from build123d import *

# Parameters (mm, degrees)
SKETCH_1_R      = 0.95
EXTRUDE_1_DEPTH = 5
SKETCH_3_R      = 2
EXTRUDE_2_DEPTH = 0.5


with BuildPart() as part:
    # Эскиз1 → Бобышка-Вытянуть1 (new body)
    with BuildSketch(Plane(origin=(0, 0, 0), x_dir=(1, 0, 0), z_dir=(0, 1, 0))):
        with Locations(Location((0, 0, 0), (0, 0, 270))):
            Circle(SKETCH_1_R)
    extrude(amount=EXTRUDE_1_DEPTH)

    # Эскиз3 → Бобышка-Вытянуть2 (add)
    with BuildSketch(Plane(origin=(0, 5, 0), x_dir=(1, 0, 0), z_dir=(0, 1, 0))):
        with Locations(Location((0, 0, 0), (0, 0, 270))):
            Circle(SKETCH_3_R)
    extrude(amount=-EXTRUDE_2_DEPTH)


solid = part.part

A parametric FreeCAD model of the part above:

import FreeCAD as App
import Part
import Sketcher

V = App.Vector
Q = App.Units.Quantity

doc = App.newDocument("Part")
body = doc.addObject("PartDesign::Body", "Body")

# Sketch on XZ plane
sketch1 = body.newObject("Sketcher::SketchObject", "Sketch")
sketch1.AttachmentSupport = (doc.getObject("XZ_Plane"), [""])
sketch1.MapMode = "FlatFace"
sketch1.addGeometry(Part.Circle(V(0, 0, 0), V(0, 0, 1), 0.9), False)
sketch1.addConstraint([
    Sketcher.Constraint("Coincident", 0, 3, -1, 1),
    Sketcher.Constraint("Diameter", 0, Q("1.9 mm")),
])
pad1 = body.newObject("PartDesign::Pad", "Pad")
pad1.Profile = sketch1
pad1.Length = 5
pad1.Reversed = True

# Sketch on XZ plane
sketch2 = body.newObject("Sketcher::SketchObject", "Sketch001")
sketch2.AttachmentSupport = (doc.getObject("XZ_Plane"), [""])
sketch2.MapMode = "FlatFace"
sketch2.AttachmentOffset = App.Placement(V(0, 0, -5), App.Rotation())
sketch2.addGeometry(Part.Circle(V(0, 0, 0), V(0, 0, 1), 2), False)
sketch2.addConstraint([
    Sketcher.Constraint("Coincident", 0, 3, -1, 1),
    Sketcher.Constraint("Diameter", 0, Q("4 mm")),
])
pad2 = body.newObject("PartDesign::Pad", "Pad001")
pad2.Profile = sketch2
pad2.Length = 0.5

doc.recompute()
